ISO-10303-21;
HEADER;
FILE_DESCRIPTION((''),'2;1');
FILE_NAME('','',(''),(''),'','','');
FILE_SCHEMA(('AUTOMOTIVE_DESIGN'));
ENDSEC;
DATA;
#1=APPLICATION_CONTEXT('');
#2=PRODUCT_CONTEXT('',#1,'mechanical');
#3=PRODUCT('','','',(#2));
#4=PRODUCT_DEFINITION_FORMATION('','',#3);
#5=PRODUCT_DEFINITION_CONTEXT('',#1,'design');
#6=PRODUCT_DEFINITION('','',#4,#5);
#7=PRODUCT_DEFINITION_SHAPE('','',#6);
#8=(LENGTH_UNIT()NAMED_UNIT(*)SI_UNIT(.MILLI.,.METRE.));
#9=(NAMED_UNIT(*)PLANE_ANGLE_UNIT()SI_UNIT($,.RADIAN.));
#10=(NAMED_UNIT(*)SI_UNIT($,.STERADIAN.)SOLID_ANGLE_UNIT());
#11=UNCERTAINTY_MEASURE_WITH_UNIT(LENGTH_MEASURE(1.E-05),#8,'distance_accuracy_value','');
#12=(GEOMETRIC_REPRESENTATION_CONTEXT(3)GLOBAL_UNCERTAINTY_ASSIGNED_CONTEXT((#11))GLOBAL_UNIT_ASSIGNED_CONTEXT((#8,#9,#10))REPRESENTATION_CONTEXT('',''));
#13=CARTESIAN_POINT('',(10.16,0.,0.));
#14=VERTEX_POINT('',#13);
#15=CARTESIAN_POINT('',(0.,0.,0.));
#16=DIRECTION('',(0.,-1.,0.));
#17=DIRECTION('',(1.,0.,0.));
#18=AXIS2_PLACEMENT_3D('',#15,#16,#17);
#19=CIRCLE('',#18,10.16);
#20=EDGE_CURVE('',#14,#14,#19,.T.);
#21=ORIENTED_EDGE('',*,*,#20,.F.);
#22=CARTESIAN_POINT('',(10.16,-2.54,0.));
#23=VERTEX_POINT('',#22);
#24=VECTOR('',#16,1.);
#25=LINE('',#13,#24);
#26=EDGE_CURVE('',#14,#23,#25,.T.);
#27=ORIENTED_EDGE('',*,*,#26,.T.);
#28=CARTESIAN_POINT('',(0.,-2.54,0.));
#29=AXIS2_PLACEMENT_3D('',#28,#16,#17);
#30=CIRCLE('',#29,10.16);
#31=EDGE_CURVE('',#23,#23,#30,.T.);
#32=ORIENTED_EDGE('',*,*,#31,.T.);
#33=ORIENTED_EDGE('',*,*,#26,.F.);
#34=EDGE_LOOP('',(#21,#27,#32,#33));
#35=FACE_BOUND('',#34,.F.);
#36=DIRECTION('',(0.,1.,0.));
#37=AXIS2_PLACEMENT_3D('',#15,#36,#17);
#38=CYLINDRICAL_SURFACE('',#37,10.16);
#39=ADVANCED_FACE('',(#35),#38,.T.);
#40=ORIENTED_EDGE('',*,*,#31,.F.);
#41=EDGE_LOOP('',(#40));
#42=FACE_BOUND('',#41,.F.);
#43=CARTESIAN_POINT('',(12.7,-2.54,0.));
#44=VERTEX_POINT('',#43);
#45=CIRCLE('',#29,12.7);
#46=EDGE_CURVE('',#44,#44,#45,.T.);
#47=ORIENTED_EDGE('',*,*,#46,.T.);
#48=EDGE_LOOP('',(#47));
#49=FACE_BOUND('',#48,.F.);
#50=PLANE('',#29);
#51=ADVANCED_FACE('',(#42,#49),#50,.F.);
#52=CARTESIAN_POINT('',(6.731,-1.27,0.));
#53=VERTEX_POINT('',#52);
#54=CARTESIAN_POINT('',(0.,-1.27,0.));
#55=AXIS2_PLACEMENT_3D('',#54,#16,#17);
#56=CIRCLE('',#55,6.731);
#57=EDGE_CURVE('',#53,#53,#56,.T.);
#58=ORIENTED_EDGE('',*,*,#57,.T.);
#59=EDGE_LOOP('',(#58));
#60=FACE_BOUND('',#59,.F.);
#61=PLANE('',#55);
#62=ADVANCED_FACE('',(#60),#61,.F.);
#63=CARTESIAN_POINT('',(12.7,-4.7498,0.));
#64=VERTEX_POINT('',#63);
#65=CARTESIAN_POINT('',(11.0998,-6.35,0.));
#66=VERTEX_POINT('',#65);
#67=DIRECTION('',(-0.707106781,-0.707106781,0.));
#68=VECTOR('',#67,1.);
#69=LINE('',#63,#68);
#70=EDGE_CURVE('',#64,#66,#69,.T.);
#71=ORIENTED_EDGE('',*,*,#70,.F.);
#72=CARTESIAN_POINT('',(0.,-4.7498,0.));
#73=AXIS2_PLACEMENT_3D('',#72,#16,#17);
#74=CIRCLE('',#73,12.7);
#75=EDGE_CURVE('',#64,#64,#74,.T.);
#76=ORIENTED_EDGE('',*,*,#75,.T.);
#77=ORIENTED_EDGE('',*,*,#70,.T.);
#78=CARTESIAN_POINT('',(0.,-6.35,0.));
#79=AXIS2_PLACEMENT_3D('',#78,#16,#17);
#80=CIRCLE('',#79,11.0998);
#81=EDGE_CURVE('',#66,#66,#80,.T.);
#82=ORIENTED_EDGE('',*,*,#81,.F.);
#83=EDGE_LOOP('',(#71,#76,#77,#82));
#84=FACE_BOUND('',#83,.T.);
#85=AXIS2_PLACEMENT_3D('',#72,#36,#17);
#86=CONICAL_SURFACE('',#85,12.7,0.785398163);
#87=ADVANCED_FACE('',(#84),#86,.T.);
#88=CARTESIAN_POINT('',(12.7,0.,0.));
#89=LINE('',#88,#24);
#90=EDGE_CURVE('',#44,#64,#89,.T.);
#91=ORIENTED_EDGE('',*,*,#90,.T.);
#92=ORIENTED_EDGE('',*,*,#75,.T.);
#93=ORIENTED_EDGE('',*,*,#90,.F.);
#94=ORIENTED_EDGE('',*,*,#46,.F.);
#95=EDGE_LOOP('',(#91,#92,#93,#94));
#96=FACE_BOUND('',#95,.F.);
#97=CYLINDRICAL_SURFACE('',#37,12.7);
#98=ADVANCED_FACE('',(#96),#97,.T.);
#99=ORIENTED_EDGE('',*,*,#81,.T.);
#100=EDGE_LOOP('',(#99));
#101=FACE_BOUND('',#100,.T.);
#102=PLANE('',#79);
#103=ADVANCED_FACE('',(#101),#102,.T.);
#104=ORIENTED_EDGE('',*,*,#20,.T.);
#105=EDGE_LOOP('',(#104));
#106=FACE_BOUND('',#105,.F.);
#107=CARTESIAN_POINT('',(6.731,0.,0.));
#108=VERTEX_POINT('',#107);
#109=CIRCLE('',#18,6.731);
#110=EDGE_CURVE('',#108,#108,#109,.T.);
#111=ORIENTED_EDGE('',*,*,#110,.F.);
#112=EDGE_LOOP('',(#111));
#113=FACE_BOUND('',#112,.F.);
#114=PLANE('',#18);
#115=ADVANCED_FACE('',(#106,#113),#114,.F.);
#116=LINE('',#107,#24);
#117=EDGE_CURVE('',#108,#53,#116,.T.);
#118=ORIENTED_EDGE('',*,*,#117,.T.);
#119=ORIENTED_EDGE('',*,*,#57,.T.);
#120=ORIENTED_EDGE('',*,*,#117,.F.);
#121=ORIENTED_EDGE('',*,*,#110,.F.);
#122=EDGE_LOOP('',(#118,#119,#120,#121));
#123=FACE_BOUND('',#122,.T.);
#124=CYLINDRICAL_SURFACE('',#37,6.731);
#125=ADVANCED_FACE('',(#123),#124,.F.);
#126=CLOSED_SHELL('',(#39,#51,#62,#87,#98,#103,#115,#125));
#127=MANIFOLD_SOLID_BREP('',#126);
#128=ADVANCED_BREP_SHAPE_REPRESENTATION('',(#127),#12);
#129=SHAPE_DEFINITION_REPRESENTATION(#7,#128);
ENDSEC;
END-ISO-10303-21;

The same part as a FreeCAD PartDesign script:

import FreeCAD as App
import Part
import Sketcher
Q = App.Units.Quantity


def edges_at(feature, points):
    """Names of the edges that pass closest to the given points."""
    edges = feature.Shape.Edges
    near = lambda p: min(range(len(edges)), key=lambda i: edges[i].distToShape(Part.Vertex(*p))[0])
    return sorted({f"Edge{near(p) + 1}" for p in points})

doc = App.newDocument("Part")
body = doc.addObject("PartDesign::Body", "Body")

sketch1 = body.newObject("Sketcher::SketchObject", "Sketch")
sketch1.AttachmentSupport = (doc.getObject("XZ_Plane"), [""])
sketch1.MapMode = "FlatFace"
sketch1.addGeometry(Part.Circle(App.Vector(0, 0, 0), App.Vector(0, 0, 1), 13), False)
sketch1.addConstraint([
    Sketcher.Constraint("Coincident", 0, 3, -1, 1),
    Sketcher.Constraint("Diameter", 0, Q("1 in")),
])
pad1 = body.newObject("PartDesign::Pad", "Pad")
pad1.Profile = sketch1
pad1.Length = Q("0.25 in")

sketch2 = body.newObject("Sketcher::SketchObject", "Sketch001")
sketch2.AttachmentSupport = (doc.getObject("XZ_Plane"), [""])
sketch2.MapMode = "FlatFace"
sketch2.addGeometry([
    Part.Circle(App.Vector(0, 0, 0), App.Vector(0, 0, 1), 13),
    Part.Circle(App.Vector(0, 0, 0), App.Vector(0, 0, 1), 10),
], False)
sketch2.addConstraint([
    Sketcher.Constraint("Coincident", 0, 3, -1, 1),
    Sketcher.Constraint("Coincident", 1, 3, -1, 1),
    Sketcher.Constraint("Diameter", 0, Q("1 in")),
    Sketcher.Constraint("Diameter", 1, Q("0.8 in")),
])
pocket1 = body.newObject("PartDesign::Pocket", "Pocket")
pocket1.Profile = sketch2
pocket1.Length = Q("0.1 in")
pocket1.Reversed = True

sketch3 = body.newObject("Sketcher::SketchObject", "Sketch002")
sketch3.AttachmentSupport = (doc.getObject("XZ_Plane"), [""])
sketch3.MapMode = "FlatFace"
sketch3.addGeometry(Part.Circle(App.Vector(0, 0, 0), App.Vector(0, 0, 1), 7), False)
sketch3.addConstraint([
    Sketcher.Constraint("Coincident", 0, 3, -1, 1),
    Sketcher.Constraint("Diameter", 0, Q("0.53 in")),
])
pocket2 = body.newObject("PartDesign::Pocket", "Pocket001")
pocket2.Profile = sketch3
pocket2.Length = Q("0.05 in")
pocket2.Reversed = True
doc.recompute()

chamfer = body.newObject("PartDesign::Chamfer", "Chamfer")
chamfer.Base = (pocket2, edges_at(pocket2, [(-12.7, -6.35, 0)]))
chamfer.Size = Q("0.063 in")

doc.recompute()
